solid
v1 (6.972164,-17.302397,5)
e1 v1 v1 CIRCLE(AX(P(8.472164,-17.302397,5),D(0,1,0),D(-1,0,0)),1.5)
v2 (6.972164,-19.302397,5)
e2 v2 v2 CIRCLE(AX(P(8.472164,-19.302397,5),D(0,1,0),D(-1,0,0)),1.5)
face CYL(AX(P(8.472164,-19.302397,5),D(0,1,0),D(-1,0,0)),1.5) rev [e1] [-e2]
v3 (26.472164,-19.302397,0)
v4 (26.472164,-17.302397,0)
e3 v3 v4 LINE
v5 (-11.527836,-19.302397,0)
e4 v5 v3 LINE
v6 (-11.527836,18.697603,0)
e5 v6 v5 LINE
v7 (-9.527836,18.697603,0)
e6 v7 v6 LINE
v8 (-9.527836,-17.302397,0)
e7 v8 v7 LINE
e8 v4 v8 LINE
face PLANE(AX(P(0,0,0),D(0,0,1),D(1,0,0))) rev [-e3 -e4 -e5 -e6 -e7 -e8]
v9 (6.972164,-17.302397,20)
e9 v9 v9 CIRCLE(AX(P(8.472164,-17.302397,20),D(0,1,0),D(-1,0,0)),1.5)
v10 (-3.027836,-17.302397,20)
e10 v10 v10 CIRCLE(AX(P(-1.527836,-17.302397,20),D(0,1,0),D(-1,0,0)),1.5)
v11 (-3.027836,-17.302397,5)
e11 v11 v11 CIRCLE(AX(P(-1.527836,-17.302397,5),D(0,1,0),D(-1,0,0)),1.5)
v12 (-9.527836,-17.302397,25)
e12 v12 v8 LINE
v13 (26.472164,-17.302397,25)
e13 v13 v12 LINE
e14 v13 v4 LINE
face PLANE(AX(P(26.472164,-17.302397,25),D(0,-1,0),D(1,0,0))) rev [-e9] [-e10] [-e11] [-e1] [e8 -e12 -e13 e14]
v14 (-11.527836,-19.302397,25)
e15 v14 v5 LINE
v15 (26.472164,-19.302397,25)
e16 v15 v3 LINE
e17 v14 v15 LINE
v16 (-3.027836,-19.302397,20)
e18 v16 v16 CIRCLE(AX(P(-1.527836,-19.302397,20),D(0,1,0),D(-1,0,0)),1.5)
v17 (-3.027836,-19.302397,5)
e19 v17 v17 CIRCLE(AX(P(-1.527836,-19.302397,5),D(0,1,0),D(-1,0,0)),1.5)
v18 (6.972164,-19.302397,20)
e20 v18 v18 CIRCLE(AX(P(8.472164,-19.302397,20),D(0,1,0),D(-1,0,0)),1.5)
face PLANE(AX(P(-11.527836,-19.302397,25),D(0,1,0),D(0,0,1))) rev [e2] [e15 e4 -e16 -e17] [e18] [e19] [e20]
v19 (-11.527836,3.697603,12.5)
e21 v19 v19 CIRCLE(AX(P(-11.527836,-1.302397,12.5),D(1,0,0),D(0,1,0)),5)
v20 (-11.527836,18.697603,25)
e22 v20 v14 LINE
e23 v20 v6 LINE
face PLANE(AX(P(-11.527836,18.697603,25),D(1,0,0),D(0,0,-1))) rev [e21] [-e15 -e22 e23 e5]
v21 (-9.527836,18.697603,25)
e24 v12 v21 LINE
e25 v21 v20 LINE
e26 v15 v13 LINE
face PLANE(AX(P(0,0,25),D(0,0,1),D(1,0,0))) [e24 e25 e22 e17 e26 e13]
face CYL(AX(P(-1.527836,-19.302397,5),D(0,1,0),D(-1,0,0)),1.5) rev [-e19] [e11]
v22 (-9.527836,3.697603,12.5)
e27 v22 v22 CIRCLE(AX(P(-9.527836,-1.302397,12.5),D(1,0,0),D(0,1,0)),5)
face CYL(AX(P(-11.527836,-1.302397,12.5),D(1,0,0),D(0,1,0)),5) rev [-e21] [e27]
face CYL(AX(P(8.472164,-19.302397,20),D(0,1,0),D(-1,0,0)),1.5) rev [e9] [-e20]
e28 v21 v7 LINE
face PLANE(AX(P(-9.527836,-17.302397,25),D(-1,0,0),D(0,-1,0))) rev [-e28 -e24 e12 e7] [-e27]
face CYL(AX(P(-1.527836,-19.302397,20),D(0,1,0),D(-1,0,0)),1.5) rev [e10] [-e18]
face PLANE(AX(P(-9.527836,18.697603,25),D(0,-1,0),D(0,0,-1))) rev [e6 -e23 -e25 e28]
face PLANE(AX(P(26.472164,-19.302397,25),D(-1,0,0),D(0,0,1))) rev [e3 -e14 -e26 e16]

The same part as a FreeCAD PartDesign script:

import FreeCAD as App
import Part
import Sketcher

V = App.Vector

doc = App.newDocument("Part")
body = doc.addObject("PartDesign::Body", "Body")

# Sketch on XY plane
sketch1 = body.newObject("Sketcher::SketchObject", "Sketch")
sketch1.AttachmentSupport = (doc.getObject("XY_Plane"), [""])
sketch1.MapMode = "FlatFace"
sketch1.addGeometry([
    Part.LineSegment(V(-11.5, 18.7, 0), V(-11.5, -19.3, 0)),  # 0
    Part.LineSegment(V(-11.5, -19.3, 0), V(26.5, -19.3, 0)),  # 1
    Part.LineSegment(V(26.5, -19.3, 0), V(26.5, -17.3, 0)),  # 2
    Part.LineSegment(V(26.5, -17.3, 0), V(-9.5, -17.3, 0)),  # 3
    Part.LineSegment(V(-9.5, -17.3, 0), V(-9.5, 18.7, 0)),  # 4
    Part.LineSegment(V(-9.5, 18.7, 0), V(-11.5, 18.7, 0)),  # 5
], False)
sketch1.addConstraint([
    Sketcher.Constraint("Coincident", 0, 2, 1, 1),
    Sketcher.Constraint("Coincident", 1, 2, 2, 1),
    Sketcher.Constraint("Coincident", 2, 2, 3, 1),
    Sketcher.Constraint("Coincident", 3, 2, 4, 1),
    Sketcher.Constraint("Coincident", 4, 2, 5, 1),
    Sketcher.Constraint("Coincident", 5, 2, 0, 1),
    Sketcher.Constraint("Vertical", 0),
    Sketcher.Constraint("Horizontal", 1),
    Sketcher.Constraint("Vertical", 2),
    Sketcher.Constraint("Horizontal", 3),
    Sketcher.Constraint("Vertical", 4),
    Sketcher.Constraint("Horizontal", 5),
    Sketcher.Constraint("Equal", 1, 0),
    Sketcher.Constraint("Equal", 5, 2),
    Sketcher.Constraint("DistanceX", 1, 1, 1, 2, 38.0),
    Sketcher.Constraint("DistanceX", 3, 2, 3, 1, 36.0),
    Sketcher.Constraint("DistanceX", 0, 2, -1, 1, 11.527836),
    Sketcher.Constraint("DistanceY", 0, 2, -1, 1, 19.302397),
])
pad1 = body.newObject("PartDesign::Pad", "Pad")
pad1.Profile = sketch1
pad1.Length = 25

# Sketch on XZ plane
sketch2 = body.newObject("Sketcher::SketchObject", "Sketch001")
sketch2.AttachmentSupport = (doc.getObject("XZ_Plane"), [""])
sketch2.MapMode = "FlatFace"
sketch2.AttachmentOffset = App.Placement(V(0, 0, 17.302397), App.Rotation())
sketch2.addGeometry([
    Part.Circle(V(-1.5, 5, 0), V(0, 0, 1), 1.5),
    Part.Circle(V(8.5, 5, 0), V(0, 0, 1), 1.5),
    Part.Circle(V(8.5, 20, 0), V(0, 0, 1), 1.5),
    Part.Circle(V(-1.5, 20, 0), V(0, 0, 1), 1.5),
], False)
sketch2.addConstraint([
    Sketcher.Constraint("Equal", 0, 1),
    Sketcher.Constraint("Equal", 1, 2),
    Sketcher.Constraint("Equal", 2, 3),
    Sketcher.Constraint("Horizontal", 0, 3, 1, 3),
    Sketcher.Constraint("Horizontal", 2, 3, 3, 3),
    Sketcher.Constraint("Vertical", 1, 3, 2, 3),
    Sketcher.Constraint("Vertical", 0, 3, 3, 3),
    Sketcher.Constraint("Diameter", 0, 3.0),
    Sketcher.Constraint("DistanceY", -1, 1, 0, 3, 5.0),
    Sketcher.Constraint("DistanceY", -1, 1, 2, 3, 20.0),
    Sketcher.Constraint("DistanceX", 0, 3, 1, 3, 10.0),
    Sketcher.Constraint("DistanceX", 0, 3, -1, 1, 1.527836),
])
pocket1 = body.newObject("PartDesign::Pocket", "Pocket")
pocket1.Profile = sketch2
pocket1.Type = "ThroughAll"
pocket1.Reversed = True

# Sketch on YZ plane
sketch3 = body.newObject("Sketcher::SketchObject", "Sketch002")
sketch3.AttachmentSupport = (doc.getObject("YZ_Plane"), [""])
sketch3.MapMode = "FlatFace"
sketch3.AttachmentOffset = App.Placement(V(0, 0, -9.527836), App.Rotation())
sketch3.addGeometry(Part.Circle(V(-1, 12, 0), V(0, 0, 1), 5), False)
sketch3.addConstraint([
    Sketcher.Constraint("Diameter", 0, 10.0),
    Sketcher.Constraint("DistanceY", -1, 1, 0, 3, 12.5),
    Sketcher.Constraint("DistanceX", 0, 3, -1, 1, 1.302397),
])
pocket2 = body.newObject("PartDesign::Pocket", "Pocket001")
pocket2.Profile = sketch3
pocket2.Type = "ThroughAll"

doc.recompute()
